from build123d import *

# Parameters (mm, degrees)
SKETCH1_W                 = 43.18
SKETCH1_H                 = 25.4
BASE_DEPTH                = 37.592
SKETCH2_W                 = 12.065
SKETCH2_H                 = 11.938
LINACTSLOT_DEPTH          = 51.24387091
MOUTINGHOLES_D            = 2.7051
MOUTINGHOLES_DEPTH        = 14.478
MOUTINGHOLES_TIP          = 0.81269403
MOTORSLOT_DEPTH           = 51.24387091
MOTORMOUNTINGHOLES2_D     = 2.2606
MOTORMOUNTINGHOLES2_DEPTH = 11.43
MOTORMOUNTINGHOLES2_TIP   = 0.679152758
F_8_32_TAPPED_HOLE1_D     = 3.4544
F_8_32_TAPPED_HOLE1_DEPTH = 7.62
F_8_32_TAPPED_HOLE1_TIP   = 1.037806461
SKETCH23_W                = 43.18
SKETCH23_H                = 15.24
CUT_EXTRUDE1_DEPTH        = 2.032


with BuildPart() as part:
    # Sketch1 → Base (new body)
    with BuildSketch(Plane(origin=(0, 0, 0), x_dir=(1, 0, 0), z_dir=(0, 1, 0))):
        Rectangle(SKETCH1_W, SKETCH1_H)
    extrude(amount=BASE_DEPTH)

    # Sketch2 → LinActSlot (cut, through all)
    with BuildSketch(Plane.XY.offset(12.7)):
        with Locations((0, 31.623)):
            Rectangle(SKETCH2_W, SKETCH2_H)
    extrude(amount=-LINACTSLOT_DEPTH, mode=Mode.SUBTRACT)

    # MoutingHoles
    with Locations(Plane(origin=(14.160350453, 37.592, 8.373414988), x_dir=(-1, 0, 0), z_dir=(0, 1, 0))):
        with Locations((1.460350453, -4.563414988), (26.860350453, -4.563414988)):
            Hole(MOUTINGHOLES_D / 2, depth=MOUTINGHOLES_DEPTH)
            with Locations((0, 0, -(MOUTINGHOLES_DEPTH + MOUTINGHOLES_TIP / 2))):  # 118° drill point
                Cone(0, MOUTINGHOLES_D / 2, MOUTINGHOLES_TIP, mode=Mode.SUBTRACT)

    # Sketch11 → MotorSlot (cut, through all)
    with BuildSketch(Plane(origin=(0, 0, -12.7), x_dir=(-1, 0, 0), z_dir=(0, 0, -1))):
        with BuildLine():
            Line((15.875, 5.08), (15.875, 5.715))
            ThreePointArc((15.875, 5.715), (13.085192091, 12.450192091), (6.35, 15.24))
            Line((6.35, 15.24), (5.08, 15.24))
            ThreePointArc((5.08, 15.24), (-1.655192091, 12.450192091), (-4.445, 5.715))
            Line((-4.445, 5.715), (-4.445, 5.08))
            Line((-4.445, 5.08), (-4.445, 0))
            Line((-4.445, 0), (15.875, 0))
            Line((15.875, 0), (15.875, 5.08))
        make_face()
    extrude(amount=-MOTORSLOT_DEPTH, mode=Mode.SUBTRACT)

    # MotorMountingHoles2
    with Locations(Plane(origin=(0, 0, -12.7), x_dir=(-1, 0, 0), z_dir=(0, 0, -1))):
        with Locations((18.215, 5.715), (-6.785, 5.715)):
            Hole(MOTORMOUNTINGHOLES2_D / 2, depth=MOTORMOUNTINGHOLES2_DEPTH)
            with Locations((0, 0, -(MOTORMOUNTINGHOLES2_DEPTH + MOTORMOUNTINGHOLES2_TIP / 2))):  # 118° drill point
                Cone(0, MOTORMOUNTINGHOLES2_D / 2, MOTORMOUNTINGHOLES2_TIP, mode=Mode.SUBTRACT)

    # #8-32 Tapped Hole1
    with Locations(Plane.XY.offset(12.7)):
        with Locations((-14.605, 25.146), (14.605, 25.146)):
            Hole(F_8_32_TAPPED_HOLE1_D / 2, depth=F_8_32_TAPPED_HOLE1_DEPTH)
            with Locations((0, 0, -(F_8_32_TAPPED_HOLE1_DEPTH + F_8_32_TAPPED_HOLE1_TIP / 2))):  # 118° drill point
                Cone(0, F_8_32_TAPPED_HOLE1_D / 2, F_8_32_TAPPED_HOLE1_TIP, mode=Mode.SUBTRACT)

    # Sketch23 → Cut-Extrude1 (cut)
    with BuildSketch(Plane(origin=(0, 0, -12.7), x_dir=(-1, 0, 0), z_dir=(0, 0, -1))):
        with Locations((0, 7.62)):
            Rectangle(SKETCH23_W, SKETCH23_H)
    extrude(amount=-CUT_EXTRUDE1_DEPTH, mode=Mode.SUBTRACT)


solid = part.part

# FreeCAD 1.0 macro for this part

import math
import FreeCAD as App
import Part
import Sketcher
Q = App.Units.Quantity

doc = App.newDocument("Part")
body = doc.addObject("PartDesign::Body", "Body")

sketch1 = body.newObject("Sketcher::SketchObject", "Sketch")
sketch1.AttachmentSupport = (doc.getObject("XZ_Plane"), [""])
sketch1.MapMode = "FlatFace"
sketch1.addGeometry([
    Part.LineSegment(App.Vector(-22, -13, 0), App.Vector(-22, 13, 0)),
    Part.LineSegment(App.Vector(-22, 13, 0), App.Vector(22, 13, 0)),
    Part.LineSegment(App.Vector(22, 13, 0), App.Vector(22, -13, 0)),
    Part.LineSegment(App.Vector(22, -13, 0), App.Vector(-22, -13, 0)),
], False)
sketch1.addConstraint([
    Sketcher.Constraint("Coincident", 0, 2, 1, 1),
    Sketcher.Constraint("Coincident", 1, 2, 2, 1),
    Sketcher.Constraint("Coincident", 2, 2, 3, 1),
    Sketcher.Constraint("Coincident", 3, 2, 0, 1),
    Sketcher.Constraint("Vertical", 0),
    Sketcher.Constraint("Horizontal", 1),
    Sketcher.Constraint("Vertical", 2),
    Sketcher.Constraint("Horizontal", 3),
    Sketcher.Constraint("Symmetric", 0, 2, 2, 2, -1, 1),
    Sketcher.Constraint("DistanceY", 0, 1, 0, 2, Q("1 in")),
    Sketcher.Constraint("DistanceX", 1, 1, 1, 2, Q("1.7 in")),
])
pad1 = body.newObject("PartDesign::Pad", "Pad")
pad1.Profile = sketch1
pad1.Length = Q("1.48 in")
pad1.Reversed = True

sketch2 = body.newObject("Sketcher::SketchObject", "Sketch001")
sketch2.AttachmentSupport = (doc.getObject("XY_Plane"), [""])
sketch2.MapMode = "FlatFace"
sketch2.AttachmentOffset = App.Placement(App.Vector(0, 0, 0.5 * 25.4), App.Rotation())
sketch2.addGeometry([
    Part.LineSegment(App.Vector(-6, 38, 0), App.Vector(-6, 26, 0)),
    Part.LineSegment(App.Vector(-6, 26, 0), App.Vector(6, 26, 0)),
    Part.LineSegment(App.Vector(6, 26, 0), App.Vector(6, 38, 0)),
    Part.LineSegment(App.Vector(6, 38, 0), App.Vector(-6, 38, 0)),
], False)
sketch2.addConstraint([
    Sketcher.Constraint("Coincident", 0, 2, 1, 1),
    Sketcher.Constraint("Coincident", 1, 2, 2, 1),
    Sketcher.Constraint("Coincident", 2, 2, 3, 1),
    Sketcher.Constraint("Coincident", 3, 2, 0, 1),
    Sketcher.Constraint("Vertical", 0),
    Sketcher.Constraint("Horizontal", 1),
    Sketcher.Constraint("Vertical", 2),
    Sketcher.Constraint("Horizontal", 3),
    Sketcher.Constraint("DistanceY", 0, 2, 0, 1, Q("0.47 in")),
    Sketcher.Constraint("DistanceX", 1, 1, 1, 2, Q("0.475 in")),
    Sketcher.Constraint("DistanceY", -1, 1, 0, 2, Q("1.01 in")),
    Sketcher.Constraint("DistanceX", 0, 2, -1, 1, Q("0.2375 in")),
])
pocket1 = body.newObject("PartDesign::Pocket", "Pocket")
pocket1.Profile = sketch2
pocket1.Type = "ThroughAll"

sketch3 = body.newObject("Sketcher::SketchObject", "Sketch002")
sketch3.AttachmentSupport = (doc.getObject("XZ_Plane"), [""])
sketch3.MapMode = "FlatFace"
sketch3.AttachmentOffset = App.Placement(App.Vector(0, 0, -1.48 * 25.4), App.Rotation())
sketch3.addGeometry([
    Part.Circle(App.Vector(12.7, 3.8, 0), App.Vector(0, 0, 1), 1.4),
    Part.Circle(App.Vector(-12.7, 3.8, 0), App.Vector(0, 0, 1), 1.4),
], False)
sketch3.addConstraint([
    Sketcher.Constraint("Equal", 0, 1),
    Sketcher.Constraint("Symmetric", 0, 3, 1, 3, -2),
    Sketcher.Constraint("DistanceX", 1, 3, 0, 3, Q("1 in")),
    Sketcher.Constraint("Diameter", 0, Q("0.1065 in")),
    Sketcher.Constraint("DistanceY", -1, 1, 0, 3, Q("0.15 in")),
])
doc.recompute()
hole = body.newObject("PartDesign::Hole", "Hole")
hole.Profile = sketch3
hole.ThreadType = "None"
hole.Diameter = Q("0.1065 in")
hole.DepthType = "Dimension"
hole.Depth = Q("0.57 in")
hole.DrillPoint = "Angled"
hole.DrillPointAngle = 118
hole.Reversed = True

sketch4 = body.newObject("Sketcher::SketchObject", "Sketch003")
sketch4.AttachmentSupport = (doc.getObject("XY_Plane"), [""])
sketch4.MapMode = "FlatFace"
sketch4.AttachmentOffset = App.Placement(App.Vector(0, 0, -0.5 * 25.4), App.Rotation())
sketch4.addGeometry([
    Part.ArcOfCircle(Part.Circle(App.Vector(-6.4, 5.7, 0), App.Vector(0, 0, 1), 9.5), math.radians(90), math.radians(180)),
    Part.LineSegment(App.Vector(-6.3, 15.2, 0), App.Vector(-5.1, 15.2, 0)),
    Part.ArcOfCircle(Part.Circle(App.Vector(-5.1, 5.7, 0), App.Vector(0, 0, 1), 9.5), math.radians(0), math.radians(90)),
    Part.LineSegment(App.Vector(4.4, 5.7, 0), App.Vector(4.4, 0, 0)),
    Part.LineSegment(App.Vector(4.4, 0, 0), App.Vector(-15.9, 0, 0)),
    Part.LineSegment(App.Vector(-15.9, 0, 0), App.Vector(-15.9, 5.7, 0)),
], False)
sketch4.addConstraint([
    Sketcher.Constraint("Tangent", 0, 1, 1, 1),
    Sketcher.Constraint("Tangent", 1, 2, 2, 2),
    Sketcher.Constraint("Tangent", 2, 1, 3, 1),
    Sketcher.Constraint("Coincident", 3, 2, 4, 1),
    Sketcher.Constraint("Coincident", 4, 2, 5, 1),
    Sketcher.Constraint("Tangent", 5, 2, 0, 2),
    Sketcher.Constraint("Horizontal", 1),
    Sketcher.Constraint("Vertical", 3),
    Sketcher.Constraint("Horizontal", 4),
    Sketcher.Constraint("Vertical", 5),
    Sketcher.Constraint("Equal", 0, 2),
    Sketcher.Constraint("PointOnObject", 3, 2, -1),
    Sketcher.Constraint("DistanceX", 4, 2, 4, 1, Q("0.8 in")),
    Sketcher.Constraint("Radius", 0, Q("0.375 in")),
    Sketcher.Constraint("DistanceX", 2, 3, -1, 1, Q("0.2 in")),
    Sketcher.Constraint("DistanceY", -1, 1, 0, 1, Q("0.6 in")),
])
pocket2 = body.newObject("PartDesign::Pocket", "Pocket001")
pocket2.Profile = sketch4
pocket2.Type = "ThroughAll"
pocket2.Reversed = True

sketch5 = body.newObject("Sketcher::SketchObject", "Sketch004")
sketch5.AttachmentSupport = (doc.getObject("XY_Plane"), [""])
sketch5.MapMode = "FlatFace"
sketch5.AttachmentOffset = App.Placement(App.Vector(0, 0, -0.5 * 25.4), App.Rotation())
sketch5.addGeometry([
    Part.Circle(App.Vector(-18.2, 5.7, 0), App.Vector(0, 0, 1), 1.1),
    Part.Circle(App.Vector(6.8, 5.7, 0), App.Vector(0, 0, 1), 1.1),
], False)
sketch5.addConstraint([
    Sketcher.Constraint("Equal", 0, 1),
    Sketcher.Constraint("Horizontal", 0, 3, 1, 3),
    Sketcher.Constraint("Diameter", 0, Q("0.089 in")),
    Sketcher.Constraint("DistanceY", -1, 1, 0, 3, Q("0.225 in")),
    Sketcher.Constraint("DistanceX", 0, 3, -1, 1, Q("18.215 mm")),
    Sketcher.Constraint("DistanceX", -1, 1, 1, 3, Q("6.785 mm")),
])
doc.recompute()
hole2 = body.newObject("PartDesign::Hole", "Hole001")
hole2.Profile = sketch5
hole2.ThreadType = "None"
hole2.Diameter = Q("0.089 in")
hole2.DepthType = "Dimension"
hole2.Depth = Q("0.45 in")
hole2.DrillPoint = "Angled"
hole2.DrillPointAngle = 118
hole2.Reversed = True

sketch6 = body.newObject("Sketcher::SketchObject", "Sketch005")
sketch6.AttachmentSupport = (doc.getObject("XY_Plane"), [""])
sketch6.MapMode = "FlatFace"
sketch6.AttachmentOffset = App.Placement(App.Vector(0, 0, 0.5 * 25.4), App.Rotation())
sketch6.addGeometry([
    Part.Circle(App.Vector(-14.6, 25.1, 0), App.Vector(0, 0, 1), 1.7),
    Part.Circle(App.Vector(14.6, 25.1, 0), App.Vector(0, 0, 1), 1.7),
], False)
sketch6.addConstraint([
    Sketcher.Constraint("Equal", 0, 1),
    Sketcher.Constraint("Symmetric", 0, 3, 1, 3, -2),
    Sketcher.Constraint("Diameter", 0, Q("0.136 in")),
    Sketcher.Constraint("DistanceY", -1, 1, 0, 3, Q("0.99 in")),
    Sketcher.Constraint("DistanceX", 0, 3, 1, 3, Q("1.15 in")),
])
doc.recompute()
hole3 = body.newObject("PartDesign::Hole", "Hole002")
hole3.Profile = sketch6
hole3.ThreadType = "None"
hole3.Diameter = Q("0.136 in")
hole3.DepthType = "Dimension"
hole3.Depth = Q("0.3 in")
hole3.DrillPoint = "Angled"
hole3.DrillPointAngle = 118

sketch7 = body.newObject("Sketcher::SketchObject", "Sketch006")
sketch7.AttachmentSupport = (doc.getObject("XY_Plane"), [""])
sketch7.MapMode = "FlatFace"
sketch7.AttachmentOffset = App.Placement(App.Vector(0, 0, -0.5 * 25.4), App.Rotation())
sketch7.addGeometry([
    Part.LineSegment(App.Vector(22, 15, 0), App.Vector(22, 0, 0)),
    Part.LineSegment(App.Vector(22, 0, 0), App.Vector(-22, 0, 0)),
    Part.LineSegment(App.Vector(-22, 0, 0), App.Vector(-22, 15, 0)),
    Part.LineSegment(App.Vector(-22, 15, 0), App.Vector(22, 15, 0)),
], False)
sketch7.addConstraint([
    Sketcher.Constraint("Coincident", 0, 2, 1, 1),
    Sketcher.Constraint("Coincident", 1, 2, 2, 1),
    Sketcher.Constraint("Coincident", 2, 2, 3, 1),
    Sketcher.Constraint("Coincident", 3, 2, 0, 1),
    Sketcher.Constraint("Vertical", 0),
    Sketcher.Constraint("Horizontal", 1),
    Sketcher.Constraint("Vertical", 2),
    Sketcher.Constraint("Horizontal", 3),
    Sketcher.Constraint("Symmetric", 0, 2, 1, 2, -1, 1),
    Sketcher.Constraint("DistanceX", 1, 2, 1, 1, Q("1.7 in")),
    Sketcher.Constraint("DistanceY", 0, 2, 0, 1, Q("0.6 in")),
])
pocket3 = body.newObject("PartDesign::Pocket", "Pocket002")
pocket3.Profile = sketch7
pocket3.Length = Q("0.08 in")
pocket3.Reversed = True

doc.recompute()
